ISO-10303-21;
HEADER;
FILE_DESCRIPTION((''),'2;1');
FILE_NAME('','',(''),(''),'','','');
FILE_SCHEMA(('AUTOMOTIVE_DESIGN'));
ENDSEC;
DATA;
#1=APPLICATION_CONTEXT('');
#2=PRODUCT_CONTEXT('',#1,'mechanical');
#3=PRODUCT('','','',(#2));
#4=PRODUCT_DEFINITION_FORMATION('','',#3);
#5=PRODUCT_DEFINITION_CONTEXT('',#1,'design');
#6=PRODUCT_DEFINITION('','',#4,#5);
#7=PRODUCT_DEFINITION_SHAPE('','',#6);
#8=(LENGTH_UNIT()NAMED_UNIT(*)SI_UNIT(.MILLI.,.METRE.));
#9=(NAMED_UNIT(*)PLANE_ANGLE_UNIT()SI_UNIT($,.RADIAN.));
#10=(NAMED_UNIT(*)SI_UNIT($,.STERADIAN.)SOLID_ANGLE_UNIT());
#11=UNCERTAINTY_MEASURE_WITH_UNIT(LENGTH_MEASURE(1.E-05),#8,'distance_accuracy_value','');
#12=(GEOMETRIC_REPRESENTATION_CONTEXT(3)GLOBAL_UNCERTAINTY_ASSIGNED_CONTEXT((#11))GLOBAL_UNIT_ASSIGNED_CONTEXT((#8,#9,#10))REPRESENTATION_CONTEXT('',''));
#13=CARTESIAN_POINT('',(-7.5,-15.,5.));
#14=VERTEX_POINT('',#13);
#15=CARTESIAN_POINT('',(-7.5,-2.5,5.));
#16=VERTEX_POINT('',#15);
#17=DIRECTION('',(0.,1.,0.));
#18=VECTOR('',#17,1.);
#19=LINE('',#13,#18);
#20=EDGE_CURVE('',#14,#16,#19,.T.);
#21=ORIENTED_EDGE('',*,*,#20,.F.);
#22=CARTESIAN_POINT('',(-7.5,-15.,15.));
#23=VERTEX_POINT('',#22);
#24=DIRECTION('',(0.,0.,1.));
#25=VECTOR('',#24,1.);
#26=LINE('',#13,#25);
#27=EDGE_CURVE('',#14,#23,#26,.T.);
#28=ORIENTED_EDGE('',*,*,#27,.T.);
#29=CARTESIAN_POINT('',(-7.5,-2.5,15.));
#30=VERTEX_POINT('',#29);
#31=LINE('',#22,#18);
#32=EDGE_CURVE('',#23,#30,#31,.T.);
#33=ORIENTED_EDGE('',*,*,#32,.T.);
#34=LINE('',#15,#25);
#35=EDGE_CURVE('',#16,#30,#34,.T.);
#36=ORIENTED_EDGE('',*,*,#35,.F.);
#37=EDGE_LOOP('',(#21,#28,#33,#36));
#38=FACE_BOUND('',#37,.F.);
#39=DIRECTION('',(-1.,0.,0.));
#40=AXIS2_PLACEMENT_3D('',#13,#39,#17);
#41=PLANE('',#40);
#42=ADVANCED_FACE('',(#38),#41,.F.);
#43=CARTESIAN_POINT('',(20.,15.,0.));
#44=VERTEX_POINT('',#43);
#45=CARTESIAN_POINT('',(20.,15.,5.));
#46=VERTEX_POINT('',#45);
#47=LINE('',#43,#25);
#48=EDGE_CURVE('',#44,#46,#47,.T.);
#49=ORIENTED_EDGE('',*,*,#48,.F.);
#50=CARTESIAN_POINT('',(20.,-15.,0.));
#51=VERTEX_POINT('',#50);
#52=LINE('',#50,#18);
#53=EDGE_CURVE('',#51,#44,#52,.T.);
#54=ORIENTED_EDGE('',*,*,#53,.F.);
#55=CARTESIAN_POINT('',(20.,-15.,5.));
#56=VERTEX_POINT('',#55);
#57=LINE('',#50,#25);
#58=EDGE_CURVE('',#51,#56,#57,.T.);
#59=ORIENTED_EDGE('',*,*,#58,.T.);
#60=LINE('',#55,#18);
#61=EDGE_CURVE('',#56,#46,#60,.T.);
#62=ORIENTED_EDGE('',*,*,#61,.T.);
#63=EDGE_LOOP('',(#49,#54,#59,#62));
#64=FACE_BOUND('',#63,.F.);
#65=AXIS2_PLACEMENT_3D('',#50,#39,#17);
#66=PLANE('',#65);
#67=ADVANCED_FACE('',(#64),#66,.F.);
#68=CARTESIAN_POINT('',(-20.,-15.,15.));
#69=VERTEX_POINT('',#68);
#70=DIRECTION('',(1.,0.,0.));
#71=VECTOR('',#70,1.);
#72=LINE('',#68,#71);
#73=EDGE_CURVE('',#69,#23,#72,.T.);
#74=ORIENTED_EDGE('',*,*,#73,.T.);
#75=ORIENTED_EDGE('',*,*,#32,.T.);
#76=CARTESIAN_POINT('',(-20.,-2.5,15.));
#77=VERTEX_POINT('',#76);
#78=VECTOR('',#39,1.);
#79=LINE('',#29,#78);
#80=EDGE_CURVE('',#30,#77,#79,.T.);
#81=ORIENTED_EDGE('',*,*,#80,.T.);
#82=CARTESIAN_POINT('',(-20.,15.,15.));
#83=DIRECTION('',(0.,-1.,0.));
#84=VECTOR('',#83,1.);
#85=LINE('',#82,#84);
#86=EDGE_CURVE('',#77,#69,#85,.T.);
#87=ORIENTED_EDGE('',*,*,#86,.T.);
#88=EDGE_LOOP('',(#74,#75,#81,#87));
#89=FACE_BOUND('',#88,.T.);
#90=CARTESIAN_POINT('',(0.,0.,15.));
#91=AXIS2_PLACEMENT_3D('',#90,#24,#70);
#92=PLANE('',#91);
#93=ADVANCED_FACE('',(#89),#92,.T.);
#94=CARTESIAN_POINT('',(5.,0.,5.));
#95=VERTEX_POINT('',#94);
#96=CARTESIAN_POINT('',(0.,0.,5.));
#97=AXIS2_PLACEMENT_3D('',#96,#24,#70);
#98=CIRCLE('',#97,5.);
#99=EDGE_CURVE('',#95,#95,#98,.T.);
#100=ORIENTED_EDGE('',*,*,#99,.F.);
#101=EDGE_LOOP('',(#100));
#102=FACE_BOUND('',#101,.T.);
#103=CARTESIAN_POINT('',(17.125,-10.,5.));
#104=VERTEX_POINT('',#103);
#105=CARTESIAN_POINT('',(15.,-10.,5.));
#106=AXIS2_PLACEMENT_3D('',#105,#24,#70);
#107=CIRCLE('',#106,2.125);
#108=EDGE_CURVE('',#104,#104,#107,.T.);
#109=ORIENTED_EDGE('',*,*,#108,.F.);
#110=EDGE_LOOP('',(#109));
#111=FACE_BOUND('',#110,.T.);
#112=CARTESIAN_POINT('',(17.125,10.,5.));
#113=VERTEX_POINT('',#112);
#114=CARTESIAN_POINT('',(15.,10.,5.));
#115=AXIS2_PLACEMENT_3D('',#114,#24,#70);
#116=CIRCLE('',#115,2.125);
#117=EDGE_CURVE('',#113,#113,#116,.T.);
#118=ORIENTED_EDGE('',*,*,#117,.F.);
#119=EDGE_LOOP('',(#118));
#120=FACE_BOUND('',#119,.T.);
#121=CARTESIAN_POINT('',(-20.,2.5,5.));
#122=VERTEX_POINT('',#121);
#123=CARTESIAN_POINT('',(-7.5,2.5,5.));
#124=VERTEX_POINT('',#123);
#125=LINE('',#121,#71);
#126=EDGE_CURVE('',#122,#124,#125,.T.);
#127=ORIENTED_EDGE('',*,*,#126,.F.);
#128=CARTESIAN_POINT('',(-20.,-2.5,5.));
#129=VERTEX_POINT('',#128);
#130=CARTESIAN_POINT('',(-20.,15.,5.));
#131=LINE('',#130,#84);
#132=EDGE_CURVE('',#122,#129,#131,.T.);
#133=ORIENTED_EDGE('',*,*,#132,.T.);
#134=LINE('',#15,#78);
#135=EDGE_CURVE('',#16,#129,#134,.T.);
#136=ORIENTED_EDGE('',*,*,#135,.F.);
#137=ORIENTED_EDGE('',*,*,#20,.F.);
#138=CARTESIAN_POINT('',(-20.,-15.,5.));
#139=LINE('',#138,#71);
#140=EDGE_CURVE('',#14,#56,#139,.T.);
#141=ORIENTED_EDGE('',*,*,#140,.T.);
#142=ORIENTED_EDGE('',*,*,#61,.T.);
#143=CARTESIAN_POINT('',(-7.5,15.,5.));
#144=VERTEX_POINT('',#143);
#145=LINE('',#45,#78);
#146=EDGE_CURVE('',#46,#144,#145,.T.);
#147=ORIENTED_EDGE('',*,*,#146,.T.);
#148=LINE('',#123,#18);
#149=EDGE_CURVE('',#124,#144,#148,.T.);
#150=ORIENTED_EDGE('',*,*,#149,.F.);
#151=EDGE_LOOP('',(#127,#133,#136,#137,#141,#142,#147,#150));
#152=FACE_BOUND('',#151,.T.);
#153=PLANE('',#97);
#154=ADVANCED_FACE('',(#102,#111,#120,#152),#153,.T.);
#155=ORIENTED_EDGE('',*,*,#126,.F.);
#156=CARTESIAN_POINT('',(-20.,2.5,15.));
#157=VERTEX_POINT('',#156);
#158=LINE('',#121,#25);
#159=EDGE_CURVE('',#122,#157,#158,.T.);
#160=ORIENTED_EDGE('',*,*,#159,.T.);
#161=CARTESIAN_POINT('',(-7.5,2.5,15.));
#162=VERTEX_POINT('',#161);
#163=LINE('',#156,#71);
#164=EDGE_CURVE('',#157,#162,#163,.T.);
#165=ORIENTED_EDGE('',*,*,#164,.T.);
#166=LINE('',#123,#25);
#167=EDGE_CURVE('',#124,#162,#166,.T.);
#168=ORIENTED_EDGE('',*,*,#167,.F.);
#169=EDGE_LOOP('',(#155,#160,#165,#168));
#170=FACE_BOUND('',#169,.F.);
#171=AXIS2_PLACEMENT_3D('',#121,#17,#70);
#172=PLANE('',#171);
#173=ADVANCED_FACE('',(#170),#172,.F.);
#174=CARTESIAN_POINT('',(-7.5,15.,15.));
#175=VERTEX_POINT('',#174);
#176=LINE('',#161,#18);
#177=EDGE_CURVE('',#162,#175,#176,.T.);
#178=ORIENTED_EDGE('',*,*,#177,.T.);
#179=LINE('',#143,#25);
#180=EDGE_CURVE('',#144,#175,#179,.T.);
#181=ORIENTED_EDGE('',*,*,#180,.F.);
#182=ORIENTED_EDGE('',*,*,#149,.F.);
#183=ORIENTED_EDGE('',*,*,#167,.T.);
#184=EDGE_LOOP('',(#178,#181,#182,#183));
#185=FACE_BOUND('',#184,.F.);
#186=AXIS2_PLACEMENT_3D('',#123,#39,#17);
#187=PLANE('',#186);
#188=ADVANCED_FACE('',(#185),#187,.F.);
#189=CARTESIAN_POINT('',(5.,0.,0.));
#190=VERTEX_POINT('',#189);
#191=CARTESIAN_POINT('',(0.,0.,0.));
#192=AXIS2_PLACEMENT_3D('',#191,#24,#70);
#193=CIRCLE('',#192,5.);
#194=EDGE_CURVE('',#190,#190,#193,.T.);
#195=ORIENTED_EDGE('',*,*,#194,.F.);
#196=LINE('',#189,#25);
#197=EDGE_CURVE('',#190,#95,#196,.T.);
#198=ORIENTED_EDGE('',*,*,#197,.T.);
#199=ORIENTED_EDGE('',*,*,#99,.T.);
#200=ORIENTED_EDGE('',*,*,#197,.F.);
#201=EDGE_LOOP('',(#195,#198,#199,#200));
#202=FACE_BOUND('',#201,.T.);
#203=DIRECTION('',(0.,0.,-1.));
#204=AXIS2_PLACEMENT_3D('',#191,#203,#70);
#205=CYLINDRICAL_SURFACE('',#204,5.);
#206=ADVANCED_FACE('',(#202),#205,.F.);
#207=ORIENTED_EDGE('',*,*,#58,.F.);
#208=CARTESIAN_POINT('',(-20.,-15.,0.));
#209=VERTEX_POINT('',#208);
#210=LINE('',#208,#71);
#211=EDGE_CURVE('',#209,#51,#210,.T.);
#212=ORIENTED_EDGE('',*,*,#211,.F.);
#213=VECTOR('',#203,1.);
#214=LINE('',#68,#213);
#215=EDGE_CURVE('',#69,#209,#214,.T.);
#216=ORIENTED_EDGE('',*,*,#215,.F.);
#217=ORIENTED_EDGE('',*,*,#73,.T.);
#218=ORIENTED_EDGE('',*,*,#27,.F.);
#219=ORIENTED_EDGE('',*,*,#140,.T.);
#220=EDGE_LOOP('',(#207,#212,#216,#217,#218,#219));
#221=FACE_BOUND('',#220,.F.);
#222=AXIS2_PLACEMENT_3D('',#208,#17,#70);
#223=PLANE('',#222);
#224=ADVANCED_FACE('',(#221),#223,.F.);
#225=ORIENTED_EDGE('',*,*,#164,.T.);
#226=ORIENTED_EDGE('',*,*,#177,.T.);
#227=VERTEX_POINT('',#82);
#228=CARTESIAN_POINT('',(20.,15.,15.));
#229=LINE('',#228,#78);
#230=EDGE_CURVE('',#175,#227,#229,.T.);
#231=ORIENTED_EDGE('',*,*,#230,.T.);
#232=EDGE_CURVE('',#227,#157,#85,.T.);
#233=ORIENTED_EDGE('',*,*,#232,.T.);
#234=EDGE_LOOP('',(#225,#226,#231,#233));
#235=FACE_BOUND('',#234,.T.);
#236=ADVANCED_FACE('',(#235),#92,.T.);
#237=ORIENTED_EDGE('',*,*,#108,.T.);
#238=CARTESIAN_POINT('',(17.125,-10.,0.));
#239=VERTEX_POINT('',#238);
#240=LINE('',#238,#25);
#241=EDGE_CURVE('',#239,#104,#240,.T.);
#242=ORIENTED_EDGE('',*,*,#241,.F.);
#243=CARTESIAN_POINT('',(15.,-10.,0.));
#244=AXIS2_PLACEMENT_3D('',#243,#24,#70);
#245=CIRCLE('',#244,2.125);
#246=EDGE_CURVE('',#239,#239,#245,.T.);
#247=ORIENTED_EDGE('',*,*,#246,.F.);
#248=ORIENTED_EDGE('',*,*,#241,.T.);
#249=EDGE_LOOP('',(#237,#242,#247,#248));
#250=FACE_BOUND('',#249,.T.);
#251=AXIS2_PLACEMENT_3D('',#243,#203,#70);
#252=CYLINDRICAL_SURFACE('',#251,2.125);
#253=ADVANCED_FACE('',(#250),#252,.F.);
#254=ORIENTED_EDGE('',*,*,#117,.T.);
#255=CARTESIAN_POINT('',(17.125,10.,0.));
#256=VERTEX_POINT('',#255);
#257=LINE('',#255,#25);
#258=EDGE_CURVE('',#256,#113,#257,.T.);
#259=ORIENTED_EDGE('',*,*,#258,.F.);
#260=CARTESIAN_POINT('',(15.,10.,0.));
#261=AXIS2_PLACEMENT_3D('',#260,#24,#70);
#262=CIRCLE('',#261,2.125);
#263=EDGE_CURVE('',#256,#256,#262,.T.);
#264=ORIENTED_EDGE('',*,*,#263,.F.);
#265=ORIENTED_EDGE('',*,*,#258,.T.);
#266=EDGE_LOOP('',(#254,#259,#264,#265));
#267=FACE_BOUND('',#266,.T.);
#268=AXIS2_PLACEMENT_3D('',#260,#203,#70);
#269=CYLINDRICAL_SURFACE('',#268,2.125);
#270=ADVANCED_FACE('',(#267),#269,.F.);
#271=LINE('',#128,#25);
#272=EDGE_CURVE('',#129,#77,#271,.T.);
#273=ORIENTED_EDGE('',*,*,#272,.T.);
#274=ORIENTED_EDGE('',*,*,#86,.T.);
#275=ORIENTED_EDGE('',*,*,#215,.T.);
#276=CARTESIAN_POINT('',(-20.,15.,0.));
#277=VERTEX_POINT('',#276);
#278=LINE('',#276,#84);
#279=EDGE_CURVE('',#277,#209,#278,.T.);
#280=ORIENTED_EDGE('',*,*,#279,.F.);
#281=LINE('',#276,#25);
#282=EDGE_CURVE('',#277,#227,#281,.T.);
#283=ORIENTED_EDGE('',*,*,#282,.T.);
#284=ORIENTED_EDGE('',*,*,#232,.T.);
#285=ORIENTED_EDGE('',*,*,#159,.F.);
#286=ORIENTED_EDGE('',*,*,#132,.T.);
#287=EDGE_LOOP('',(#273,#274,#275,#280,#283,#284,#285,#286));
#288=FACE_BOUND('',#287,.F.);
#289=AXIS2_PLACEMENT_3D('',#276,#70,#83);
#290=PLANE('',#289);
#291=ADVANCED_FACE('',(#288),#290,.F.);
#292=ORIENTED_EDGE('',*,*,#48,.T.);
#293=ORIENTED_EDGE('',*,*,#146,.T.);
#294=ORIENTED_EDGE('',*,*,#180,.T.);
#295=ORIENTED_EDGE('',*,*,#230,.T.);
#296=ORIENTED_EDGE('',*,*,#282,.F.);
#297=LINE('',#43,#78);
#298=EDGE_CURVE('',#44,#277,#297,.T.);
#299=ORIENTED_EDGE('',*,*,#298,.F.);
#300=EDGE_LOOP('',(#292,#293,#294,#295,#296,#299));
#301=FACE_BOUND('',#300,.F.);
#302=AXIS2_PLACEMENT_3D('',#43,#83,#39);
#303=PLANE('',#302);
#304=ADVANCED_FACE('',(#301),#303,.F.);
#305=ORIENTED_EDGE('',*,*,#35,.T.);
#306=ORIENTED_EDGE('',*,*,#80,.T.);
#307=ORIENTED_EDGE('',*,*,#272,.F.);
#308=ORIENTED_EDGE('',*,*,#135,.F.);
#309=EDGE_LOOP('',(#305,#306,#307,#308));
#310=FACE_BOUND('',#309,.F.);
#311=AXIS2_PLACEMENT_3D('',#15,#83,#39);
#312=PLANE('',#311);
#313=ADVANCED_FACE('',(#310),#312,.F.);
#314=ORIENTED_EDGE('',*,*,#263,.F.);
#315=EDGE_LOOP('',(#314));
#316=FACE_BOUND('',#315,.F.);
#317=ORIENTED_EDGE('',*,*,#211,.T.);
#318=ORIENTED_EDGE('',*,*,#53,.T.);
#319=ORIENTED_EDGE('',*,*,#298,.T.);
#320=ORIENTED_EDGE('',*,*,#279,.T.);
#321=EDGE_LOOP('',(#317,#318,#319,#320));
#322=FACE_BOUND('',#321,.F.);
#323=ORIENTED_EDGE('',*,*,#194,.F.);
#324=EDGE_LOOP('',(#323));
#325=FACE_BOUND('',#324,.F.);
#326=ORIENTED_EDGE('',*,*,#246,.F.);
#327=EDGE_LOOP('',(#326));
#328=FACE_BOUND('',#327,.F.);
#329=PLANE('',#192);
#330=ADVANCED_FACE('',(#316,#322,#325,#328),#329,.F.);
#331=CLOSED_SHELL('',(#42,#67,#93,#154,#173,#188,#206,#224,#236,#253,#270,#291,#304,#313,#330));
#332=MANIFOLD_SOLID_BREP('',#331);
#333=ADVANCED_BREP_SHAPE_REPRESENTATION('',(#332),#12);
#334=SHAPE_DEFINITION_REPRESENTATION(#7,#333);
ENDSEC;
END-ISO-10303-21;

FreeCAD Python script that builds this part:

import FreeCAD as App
import Part
import Sketcher

V = App.Vector


def add_polygon(sketch, points):
    """Adds a closed chain of lines whose ends are joined by coincident constraints."""
    first, n = sketch.GeometryCount, len(points)
    for a, b in zip(points, points[1:] + points[:1]):
        sketch.addGeometry(Part.LineSegment(App.Vector(*a, 0), App.Vector(*b, 0)), False)
    for i in range(n):
        sketch.addConstraint(Sketcher.Constraint("Coincident", first + i, 2, first + (i + 1) % n, 1))

doc = App.newDocument("Part")
body = doc.addObject("PartDesign::Body", "Body")

sketch1 = doc.addObject("Sketcher::SketchObject", "Sketch")
body.addObject(sketch1)
sketch1.AttachmentSupport = (doc.XY_Plane, [""])
sketch1.MapMode = "FlatFace"
add_polygon(sketch1, [(20, -15), (20, 15), (-20, 15), (-20, -15)])
sketch1.addGeometry(Part.Circle(V(15, -10, 0), V(0, 0, 1), 2.125), False)
sketch1.addGeometry(Part.Circle(V(0, 0, 0), V(0, 0, 1), 5), False)
sketch1.addGeometry(Part.Circle(V(15, 10, 0), V(0, 0, 1), 2.125), False)
sketch1.addConstraint([
    Sketcher.Constraint("Vertical", 0),
    Sketcher.Constraint("Horizontal", 1),
    Sketcher.Constraint("Vertical", 2),
    Sketcher.Constraint("Horizontal", 3),
    Sketcher.Constraint("Coincident", 5, 3, -1, 1),
    Sketcher.Constraint("Equal", 4, 6),
    Sketcher.Constraint("Symmetric", 0, 2, 2, 2, -1, 1),
    Sketcher.Constraint("Symmetric", 4, 3, 6, 3, -1),
    Sketcher.Constraint("Diameter", 5, 10.0),
    Sketcher.Constraint("DistanceX", 1, 2, 1, 1, 40.0),
    Sketcher.Constraint("DistanceY", 0, 1, 0, 2, 30.0),
    Sketcher.Constraint("DistanceY", 4, 3, -1, 1, 10.0),
    Sketcher.Constraint("Diameter", 4, 4.25),
    Sketcher.Constraint("DistanceX", -1, 1, 4, 3, 15.0),
])
pad1 = doc.addObject("PartDesign::Pad", "Pad")
body.addObject(pad1)
pad1.Profile = sketch1
pad1.Length = 5

sketch2 = doc.addObject("Sketcher::SketchObject", "Sketch001")
body.addObject(sketch2)
sketch2.AttachmentSupport = (doc.XY_Plane, [""])
sketch2.MapMode = "FlatFace"
sketch2.AttachmentOffset = App.Placement(V(0, 0, 5), App.Rotation())
add_polygon(sketch2, [(-20, -2.5), (-20, -15), (-7.5, -15), (-7.5, -2.5)])
add_polygon(sketch2, [(-20, 15), (-20, 2.5), (-7.5, 2.5), (-7.5, 15)])
sketch2.addConstraint([
    Sketcher.Constraint("Vertical", 0),
    Sketcher.Constraint("Horizontal", 1),
    Sketcher.Constraint("Vertical", 2),
    Sketcher.Constraint("Horizontal", 3),
    Sketcher.Constraint("Vertical", 4),
    Sketcher.Constraint("Horizontal", 5),
    Sketcher.Constraint("Vertical", 6),
    Sketcher.Constraint("Horizontal", 7),
    Sketcher.Constraint("Symmetric", 3, 2, 4, 2, -1),
    Sketcher.Constraint("Symmetric", 1, 2, 6, 2, -1),
    Sketcher.Constraint("Equal", 7, 0),
    Sketcher.Constraint("DistanceY", 3, 2, 4, 2, 5.0),
    Sketcher.Constraint("DistanceX", 1, 1, 1, 2, 12.5),
    Sketcher.Constraint("DistanceX", 0, 2, -1, 1, 20.0),
])
pad2 = doc.addObject("PartDesign::Pad", "Pad001")
body.addObject(pad2)
pad2.Profile = sketch2
pad2.Length = 10

doc.recompute()
